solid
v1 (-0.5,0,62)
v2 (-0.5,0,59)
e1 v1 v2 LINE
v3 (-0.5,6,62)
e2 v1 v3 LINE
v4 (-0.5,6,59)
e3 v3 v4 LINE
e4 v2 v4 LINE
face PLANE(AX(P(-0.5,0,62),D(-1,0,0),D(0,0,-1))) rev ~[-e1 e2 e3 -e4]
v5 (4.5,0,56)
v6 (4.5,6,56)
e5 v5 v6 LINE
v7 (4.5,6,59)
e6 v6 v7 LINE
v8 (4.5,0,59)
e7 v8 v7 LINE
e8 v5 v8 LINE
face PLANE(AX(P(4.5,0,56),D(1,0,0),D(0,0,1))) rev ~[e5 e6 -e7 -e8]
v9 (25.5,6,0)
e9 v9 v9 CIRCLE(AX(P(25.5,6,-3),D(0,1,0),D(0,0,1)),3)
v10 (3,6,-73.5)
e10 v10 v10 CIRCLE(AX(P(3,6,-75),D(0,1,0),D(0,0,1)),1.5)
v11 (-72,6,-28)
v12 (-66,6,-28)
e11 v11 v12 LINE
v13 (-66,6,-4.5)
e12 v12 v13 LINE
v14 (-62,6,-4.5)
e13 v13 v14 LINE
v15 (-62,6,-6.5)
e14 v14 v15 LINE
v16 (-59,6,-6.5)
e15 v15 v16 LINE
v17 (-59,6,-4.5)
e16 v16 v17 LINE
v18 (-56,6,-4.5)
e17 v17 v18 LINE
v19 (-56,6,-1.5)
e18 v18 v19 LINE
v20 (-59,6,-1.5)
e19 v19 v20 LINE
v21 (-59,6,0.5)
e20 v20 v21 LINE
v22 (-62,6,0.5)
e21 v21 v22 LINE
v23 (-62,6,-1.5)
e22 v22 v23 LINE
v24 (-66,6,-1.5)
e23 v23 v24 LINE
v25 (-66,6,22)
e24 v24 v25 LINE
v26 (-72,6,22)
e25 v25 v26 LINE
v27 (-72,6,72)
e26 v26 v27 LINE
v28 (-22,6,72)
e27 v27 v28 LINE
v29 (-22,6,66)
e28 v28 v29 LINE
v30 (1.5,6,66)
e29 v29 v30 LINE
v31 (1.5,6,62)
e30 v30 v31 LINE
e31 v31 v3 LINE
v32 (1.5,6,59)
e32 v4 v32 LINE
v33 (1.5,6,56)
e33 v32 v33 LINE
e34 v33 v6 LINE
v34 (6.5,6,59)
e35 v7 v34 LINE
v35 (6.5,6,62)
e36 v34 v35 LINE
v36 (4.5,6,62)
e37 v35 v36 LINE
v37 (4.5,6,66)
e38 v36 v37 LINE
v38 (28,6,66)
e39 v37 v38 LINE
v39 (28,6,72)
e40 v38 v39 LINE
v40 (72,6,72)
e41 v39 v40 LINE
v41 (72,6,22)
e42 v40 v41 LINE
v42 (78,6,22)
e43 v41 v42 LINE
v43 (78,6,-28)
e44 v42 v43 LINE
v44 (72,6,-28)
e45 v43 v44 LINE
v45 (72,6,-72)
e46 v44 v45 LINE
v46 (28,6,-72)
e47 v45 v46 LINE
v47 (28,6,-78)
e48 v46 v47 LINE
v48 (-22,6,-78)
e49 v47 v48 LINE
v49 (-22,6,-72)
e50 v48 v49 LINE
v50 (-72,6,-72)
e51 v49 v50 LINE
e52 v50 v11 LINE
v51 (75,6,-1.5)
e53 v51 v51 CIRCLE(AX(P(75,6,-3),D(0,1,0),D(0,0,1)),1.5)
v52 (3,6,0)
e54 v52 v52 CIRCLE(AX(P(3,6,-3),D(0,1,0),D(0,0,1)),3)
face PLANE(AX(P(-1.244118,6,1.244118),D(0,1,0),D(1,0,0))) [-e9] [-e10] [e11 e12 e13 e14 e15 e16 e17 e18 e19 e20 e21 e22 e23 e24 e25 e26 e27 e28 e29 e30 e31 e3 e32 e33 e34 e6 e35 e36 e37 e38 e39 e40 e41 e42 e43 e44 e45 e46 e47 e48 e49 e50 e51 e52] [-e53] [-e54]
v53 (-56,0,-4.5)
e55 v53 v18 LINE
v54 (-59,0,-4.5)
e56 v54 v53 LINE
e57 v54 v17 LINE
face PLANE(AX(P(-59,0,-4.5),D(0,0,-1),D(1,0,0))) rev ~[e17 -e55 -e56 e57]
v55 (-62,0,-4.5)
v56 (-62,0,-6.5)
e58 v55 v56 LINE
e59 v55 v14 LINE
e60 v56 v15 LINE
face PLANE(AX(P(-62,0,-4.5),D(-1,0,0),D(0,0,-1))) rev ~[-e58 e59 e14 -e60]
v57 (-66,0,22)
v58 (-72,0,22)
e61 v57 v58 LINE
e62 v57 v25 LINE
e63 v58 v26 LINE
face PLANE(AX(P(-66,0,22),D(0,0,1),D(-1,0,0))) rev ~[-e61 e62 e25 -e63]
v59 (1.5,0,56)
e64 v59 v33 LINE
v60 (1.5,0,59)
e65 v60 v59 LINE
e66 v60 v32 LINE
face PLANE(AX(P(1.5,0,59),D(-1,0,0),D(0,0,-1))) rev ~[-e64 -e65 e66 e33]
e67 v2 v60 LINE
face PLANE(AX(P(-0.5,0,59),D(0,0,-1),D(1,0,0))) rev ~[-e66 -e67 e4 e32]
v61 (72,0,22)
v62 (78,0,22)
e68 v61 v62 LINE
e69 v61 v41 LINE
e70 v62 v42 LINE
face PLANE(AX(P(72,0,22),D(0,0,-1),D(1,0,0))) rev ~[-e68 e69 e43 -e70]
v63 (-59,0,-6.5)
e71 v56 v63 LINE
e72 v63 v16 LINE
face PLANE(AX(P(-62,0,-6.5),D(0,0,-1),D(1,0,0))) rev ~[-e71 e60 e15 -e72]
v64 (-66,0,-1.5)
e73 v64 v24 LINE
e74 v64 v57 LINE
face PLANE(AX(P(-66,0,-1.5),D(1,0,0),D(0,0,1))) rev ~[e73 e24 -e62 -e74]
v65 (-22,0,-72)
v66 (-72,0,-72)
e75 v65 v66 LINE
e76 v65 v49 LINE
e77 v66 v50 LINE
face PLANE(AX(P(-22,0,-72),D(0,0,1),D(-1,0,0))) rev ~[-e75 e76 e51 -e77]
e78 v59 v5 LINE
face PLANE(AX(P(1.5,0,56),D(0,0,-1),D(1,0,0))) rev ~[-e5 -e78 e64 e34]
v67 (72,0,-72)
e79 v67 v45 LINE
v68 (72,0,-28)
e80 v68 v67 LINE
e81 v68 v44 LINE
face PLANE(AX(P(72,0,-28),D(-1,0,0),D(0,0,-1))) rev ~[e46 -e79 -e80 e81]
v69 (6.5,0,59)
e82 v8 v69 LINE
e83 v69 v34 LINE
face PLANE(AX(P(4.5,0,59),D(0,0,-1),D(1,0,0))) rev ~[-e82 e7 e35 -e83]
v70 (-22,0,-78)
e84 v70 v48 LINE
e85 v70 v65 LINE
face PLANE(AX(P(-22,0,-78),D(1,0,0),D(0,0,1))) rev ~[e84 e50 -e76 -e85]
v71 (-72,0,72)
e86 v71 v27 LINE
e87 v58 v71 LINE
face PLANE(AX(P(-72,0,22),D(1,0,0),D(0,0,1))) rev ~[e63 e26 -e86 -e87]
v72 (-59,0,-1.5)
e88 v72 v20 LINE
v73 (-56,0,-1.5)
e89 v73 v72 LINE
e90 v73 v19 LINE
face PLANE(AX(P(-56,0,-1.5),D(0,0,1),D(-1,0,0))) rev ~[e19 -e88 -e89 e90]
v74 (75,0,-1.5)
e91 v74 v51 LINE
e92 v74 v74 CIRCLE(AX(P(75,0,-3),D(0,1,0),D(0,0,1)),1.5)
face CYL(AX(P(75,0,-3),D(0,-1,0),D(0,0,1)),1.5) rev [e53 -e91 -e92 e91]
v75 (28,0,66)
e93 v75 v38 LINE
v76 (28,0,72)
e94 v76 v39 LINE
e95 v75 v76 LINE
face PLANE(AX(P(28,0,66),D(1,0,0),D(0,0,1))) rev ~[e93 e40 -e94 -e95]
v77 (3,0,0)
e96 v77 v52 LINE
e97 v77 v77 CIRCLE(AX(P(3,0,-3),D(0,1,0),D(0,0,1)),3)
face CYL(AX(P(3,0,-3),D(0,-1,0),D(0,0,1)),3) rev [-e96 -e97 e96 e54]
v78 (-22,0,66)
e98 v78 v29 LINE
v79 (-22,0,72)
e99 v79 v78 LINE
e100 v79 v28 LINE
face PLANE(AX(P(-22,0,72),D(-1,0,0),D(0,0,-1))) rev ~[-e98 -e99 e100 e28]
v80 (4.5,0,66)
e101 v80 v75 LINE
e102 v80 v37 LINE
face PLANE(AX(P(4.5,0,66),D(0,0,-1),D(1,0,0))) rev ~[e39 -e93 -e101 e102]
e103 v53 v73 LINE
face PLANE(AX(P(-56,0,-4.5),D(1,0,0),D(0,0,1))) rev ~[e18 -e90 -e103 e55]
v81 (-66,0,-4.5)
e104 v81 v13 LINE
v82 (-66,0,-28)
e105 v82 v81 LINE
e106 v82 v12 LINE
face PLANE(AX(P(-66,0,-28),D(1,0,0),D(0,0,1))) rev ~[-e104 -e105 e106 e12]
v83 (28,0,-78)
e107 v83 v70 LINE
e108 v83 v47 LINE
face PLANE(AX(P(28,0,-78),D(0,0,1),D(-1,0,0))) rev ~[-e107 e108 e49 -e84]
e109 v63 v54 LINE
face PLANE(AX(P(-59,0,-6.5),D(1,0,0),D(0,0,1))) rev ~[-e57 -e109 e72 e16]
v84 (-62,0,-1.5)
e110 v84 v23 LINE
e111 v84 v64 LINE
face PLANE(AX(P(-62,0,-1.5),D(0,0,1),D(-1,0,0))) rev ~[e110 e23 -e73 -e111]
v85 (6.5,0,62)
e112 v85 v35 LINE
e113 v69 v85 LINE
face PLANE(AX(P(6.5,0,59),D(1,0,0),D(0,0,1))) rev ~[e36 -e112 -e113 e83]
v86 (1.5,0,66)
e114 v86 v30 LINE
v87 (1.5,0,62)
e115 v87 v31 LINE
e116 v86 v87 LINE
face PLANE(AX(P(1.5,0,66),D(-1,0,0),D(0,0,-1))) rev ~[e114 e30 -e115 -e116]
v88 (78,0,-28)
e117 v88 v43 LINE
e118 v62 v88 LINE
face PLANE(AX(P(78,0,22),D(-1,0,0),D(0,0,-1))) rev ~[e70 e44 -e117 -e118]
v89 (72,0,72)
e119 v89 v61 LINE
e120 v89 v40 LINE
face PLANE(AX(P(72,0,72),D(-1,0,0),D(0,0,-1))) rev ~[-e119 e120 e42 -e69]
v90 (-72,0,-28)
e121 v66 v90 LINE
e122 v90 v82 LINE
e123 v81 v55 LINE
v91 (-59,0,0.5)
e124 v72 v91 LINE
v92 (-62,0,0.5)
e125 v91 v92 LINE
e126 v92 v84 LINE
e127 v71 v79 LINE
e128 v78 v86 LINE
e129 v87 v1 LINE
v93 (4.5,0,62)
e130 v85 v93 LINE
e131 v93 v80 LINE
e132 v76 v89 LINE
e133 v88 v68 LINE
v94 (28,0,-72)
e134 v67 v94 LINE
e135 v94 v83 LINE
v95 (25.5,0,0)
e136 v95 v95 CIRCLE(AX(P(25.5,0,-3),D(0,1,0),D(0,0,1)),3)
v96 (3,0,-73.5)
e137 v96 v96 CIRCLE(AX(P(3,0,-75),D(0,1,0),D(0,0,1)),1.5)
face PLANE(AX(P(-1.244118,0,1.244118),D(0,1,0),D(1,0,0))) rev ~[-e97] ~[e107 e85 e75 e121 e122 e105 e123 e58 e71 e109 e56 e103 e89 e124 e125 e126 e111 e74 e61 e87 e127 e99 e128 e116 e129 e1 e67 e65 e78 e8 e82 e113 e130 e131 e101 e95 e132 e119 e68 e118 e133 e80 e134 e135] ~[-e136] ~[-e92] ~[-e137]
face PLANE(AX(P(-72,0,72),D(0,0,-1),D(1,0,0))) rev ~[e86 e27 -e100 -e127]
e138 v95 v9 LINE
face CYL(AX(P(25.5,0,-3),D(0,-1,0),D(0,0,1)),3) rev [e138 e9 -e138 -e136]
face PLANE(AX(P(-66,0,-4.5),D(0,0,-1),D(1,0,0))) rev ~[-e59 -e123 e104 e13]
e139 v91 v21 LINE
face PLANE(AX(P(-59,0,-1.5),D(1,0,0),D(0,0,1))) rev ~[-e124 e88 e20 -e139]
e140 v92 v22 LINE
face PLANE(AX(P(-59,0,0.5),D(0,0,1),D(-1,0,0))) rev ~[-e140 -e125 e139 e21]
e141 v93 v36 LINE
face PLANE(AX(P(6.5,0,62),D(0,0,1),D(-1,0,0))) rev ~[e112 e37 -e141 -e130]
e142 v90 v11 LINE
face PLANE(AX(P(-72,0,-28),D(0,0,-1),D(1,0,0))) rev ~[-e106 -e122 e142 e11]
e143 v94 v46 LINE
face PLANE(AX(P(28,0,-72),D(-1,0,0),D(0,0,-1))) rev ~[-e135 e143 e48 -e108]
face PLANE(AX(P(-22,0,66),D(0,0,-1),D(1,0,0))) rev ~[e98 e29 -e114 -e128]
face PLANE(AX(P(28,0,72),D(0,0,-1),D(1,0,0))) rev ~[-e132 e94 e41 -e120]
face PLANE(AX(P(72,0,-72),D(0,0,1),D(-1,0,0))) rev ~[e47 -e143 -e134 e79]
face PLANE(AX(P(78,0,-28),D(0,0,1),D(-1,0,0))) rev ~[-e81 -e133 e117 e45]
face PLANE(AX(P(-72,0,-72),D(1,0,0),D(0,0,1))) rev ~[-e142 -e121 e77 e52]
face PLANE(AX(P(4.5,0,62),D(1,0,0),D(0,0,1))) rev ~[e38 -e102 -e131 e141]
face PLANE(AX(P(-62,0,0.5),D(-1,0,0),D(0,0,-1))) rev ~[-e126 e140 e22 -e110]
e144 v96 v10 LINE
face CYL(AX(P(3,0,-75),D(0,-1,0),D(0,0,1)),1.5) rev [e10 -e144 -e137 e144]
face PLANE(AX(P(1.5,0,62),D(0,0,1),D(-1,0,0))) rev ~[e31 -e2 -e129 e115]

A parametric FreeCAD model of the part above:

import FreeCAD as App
import Part
import Sketcher
from FreeCAD import Vector
Q = App.Units.Quantity

doc = App.newDocument("Part")
body = doc.addObject("PartDesign::Body", "Body")

sketch1 = doc.addObject("Sketcher::SketchObject", "Sketch")
body.addObject(sketch1)
sketch1.AttachmentSupport = (doc.XZ_Plane, [""])
sketch1.MapMode = "FlatFace"
sketch1.addGeometry([
    Part.LineSegment(Vector(-72, -72, 0), Vector(-72, -28, 0)),
    Part.LineSegment(Vector(-72, -28, 0), Vector(-66, -28, 0)),
    Part.LineSegment(Vector(-66, -28, 0), Vector(-66, -4.5, 0)),
    Part.LineSegment(Vector(-66, -4.5, 0), Vector(-62, -4.5, 0)),
    Part.LineSegment(Vector(-62, -4.5, 0), Vector(-62, -6.5, 0)),
    Part.LineSegment(Vector(-62, -6.5, 0), Vector(-59, -6.5, 0)),
    Part.LineSegment(Vector(-59, -6.5, 0), Vector(-59, -4.5, 0)),
    Part.LineSegment(Vector(-59, -4.5, 0), Vector(-56, -4.5, 0)),
    Part.LineSegment(Vector(-56, -4.5, 0), Vector(-56, -1.5, 0)),
    Part.LineSegment(Vector(-56, -1.5, 0), Vector(-59, -1.5, 0)),
    Part.LineSegment(Vector(-59, -1.5, 0), Vector(-59, 0.5, 0)),
    Part.LineSegment(Vector(-59, 0.5, 0), Vector(-62, 0.5, 0)),
    Part.LineSegment(Vector(-62, 0.5, 0), Vector(-62, -1.5, 0)),
    Part.LineSegment(Vector(-62, -1.5, 0), Vector(-66, -1.5, 0)),
    Part.LineSegment(Vector(-66, -1.5, 0), Vector(-66, 22, 0)),
    Part.LineSegment(Vector(-66, 22, 0), Vector(-72, 22, 0)),
    Part.LineSegment(Vector(-72, 22, 0), Vector(-72, 72, 0)),
    Part.LineSegment(Vector(-72, 72, 0), Vector(-22, 72, 0)),
    Part.LineSegment(Vector(-22, 72, 0), Vector(-22, 66, 0)),
    Part.LineSegment(Vector(-22, 66, 0), Vector(1.5, 66, 0)),
    Part.LineSegment(Vector(1.5, 66, 0), Vector(1.5, 62, 0)),
    Part.LineSegment(Vector(1.5, 62, 0), Vector(-0.5, 62, 0)),
    Part.LineSegment(Vector(-0.5, 62, 0), Vector(-0.5, 59, 0)),
    Part.LineSegment(Vector(-0.5, 59, 0), Vector(1.5, 59, 0)),
    Part.LineSegment(Vector(1.5, 59, 0), Vector(1.5, 56, 0)),
    Part.LineSegment(Vector(1.5, 56, 0), Vector(4.5, 56, 0)),
    Part.LineSegment(Vector(4.5, 56, 0), Vector(4.5, 59, 0)),
    Part.LineSegment(Vector(4.5, 59, 0), Vector(6.5, 59, 0)),
    Part.LineSegment(Vector(6.5, 59, 0), Vector(6.5, 62, 0)),
    Part.LineSegment(Vector(6.5, 62, 0), Vector(4.5, 62, 0)),
    Part.LineSegment(Vector(4.5, 62, 0), Vector(4.5, 66, 0)),
    Part.LineSegment(Vector(4.5, 66, 0), Vector(28, 66, 0)),
    Part.LineSegment(Vector(28, 66, 0), Vector(28, 72, 0)),
    Part.LineSegment(Vector(28, 72, 0), Vector(72, 72, 0)),
    Part.LineSegment(Vector(72, 72, 0), Vector(72, 22, 0)),
    Part.LineSegment(Vector(72, 22, 0), Vector(78, 22, 0)),
    Part.LineSegment(Vector(78, 22, 0), Vector(78, -28, 0)),
    Part.LineSegment(Vector(78, -28, 0), Vector(72, -28, 0)),
    Part.LineSegment(Vector(72, -28, 0), Vector(72, -72, 0)),
    Part.LineSegment(Vector(72, -72, 0), Vector(28, -72, 0)),
    Part.LineSegment(Vector(28, -72, 0), Vector(28, -78, 0)),
    Part.LineSegment(Vector(28, -78, 0), Vector(-22, -78, 0)),
    Part.LineSegment(Vector(-22, -78, 0), Vector(-22, -72, 0)),
    Part.LineSegment(Vector(-22, -72, 0), Vector(-72, -72, 0)),
    Part.Circle(Vector(3, -3, 0), Vector(0, 0, 1), 3),
    Part.Circle(Vector(25.5, -3, 0), Vector(0, 0, 1), 3),
    Part.Circle(Vector(75, -3, 0), Vector(0, 0, 1), 1.5),
    Part.Circle(Vector(3, -75, 0), Vector(0, 0, 1), 1.5),
], False)
sketch1.addConstraint([
    Sketcher.Constraint("Coincident", 0, 2, 1, 1),
    Sketcher.Constraint("Coincident", 1, 2, 2, 1),
    Sketcher.Constraint("Coincident", 2, 2, 3, 1),
    Sketcher.Constraint("Coincident", 3, 2, 4, 1),
    Sketcher.Constraint("Coincident", 4, 2, 5, 1),
    Sketcher.Constraint("Coincident", 5, 2, 6, 1),
    Sketcher.Constraint("Coincident", 6, 2, 7, 1),
    Sketcher.Constraint("Coincident", 7, 2, 8, 1),
    Sketcher.Constraint("Coincident", 8, 2, 9, 1),
    Sketcher.Constraint("Coincident", 9, 2, 10, 1),
    Sketcher.Constraint("Coincident", 10, 2, 11, 1),
    Sketcher.Constraint("Coincident", 11, 2, 12, 1),
    Sketcher.Constraint("Coincident", 12, 2, 13, 1),
    Sketcher.Constraint("Coincident", 13, 2, 14, 1),
    Sketcher.Constraint("Coincident", 14, 2, 15, 1),
    Sketcher.Constraint("Coincident", 15, 2, 16, 1),
    Sketcher.Constraint("Coincident", 16, 2, 17, 1),
    Sketcher.Constraint("Coincident", 17, 2, 18, 1),
    Sketcher.Constraint("Coincident", 18, 2, 19, 1),
    Sketcher.Constraint("Coincident", 19, 2, 20, 1),
    Sketcher.Constraint("Coincident", 20, 2, 21, 1),
    Sketcher.Constraint("Coincident", 21, 2, 22, 1),
    Sketcher.Constraint("Coincident", 22, 2, 23, 1),
    Sketcher.Constraint("Coincident", 23, 2, 24, 1),
    Sketcher.Constraint("Coincident", 24, 2, 25, 1),
    Sketcher.Constraint("Coincident", 25, 2, 26, 1),
    Sketcher.Constraint("Coincident", 26, 2, 27, 1),
    Sketcher.Constraint("Coincident", 27, 2, 28, 1),
    Sketcher.Constraint("Coincident", 28, 2, 29, 1),
    Sketcher.Constraint("Coincident", 29, 2, 30, 1),
    Sketcher.Constraint("Coincident", 30, 2, 31, 1),
    Sketcher.Constraint("Coincident", 31, 2, 32, 1),
    Sketcher.Constraint("Coincident", 32, 2, 33, 1),
    Sketcher.Constraint("Coincident", 33, 2, 34, 1),
    Sketcher.Constraint("Coincident", 34, 2, 35, 1),
    Sketcher.Constraint("Coincident", 35, 2, 36, 1),
    Sketcher.Constraint("Coincident", 36, 2, 37, 1),
    Sketcher.Constraint("Coincident", 37, 2, 38, 1),
    Sketcher.Constraint("Coincident", 38, 2, 39, 1),
    Sketcher.Constraint("Coincident", 39, 2, 40, 1),
    Sketcher.Constraint("Coincident", 40, 2, 41, 1),
    Sketcher.Constraint("Coincident", 41, 2, 42, 1),
    Sketcher.Constraint("Coincident", 42, 2, 43, 1),
    Sketcher.Constraint("Coincident", 43, 2, 0, 1),
    Sketcher.Constraint("Vertical", 0),
    Sketcher.Constraint("Horizontal", 1),
    Sketcher.Constraint("Vertical", 2),
    Sketcher.Constraint("Horizontal", 3),
    Sketcher.Constraint("Vertical", 4),
    Sketcher.Constraint("Horizontal", 5),
    Sketcher.Constraint("Vertical", 6),
    Sketcher.Constraint("Horizontal", 7),
    Sketcher.Constraint("Vertical", 8),
    Sketcher.Constraint("Horizontal", 9),
    Sketcher.Constraint("Vertical", 10),
    Sketcher.Constraint("Horizontal", 11),
    Sketcher.Constraint("Vertical", 12),
    Sketcher.Constraint("Horizontal", 13),
    Sketcher.Constraint("Vertical", 14),
    Sketcher.Constraint("Horizontal", 15),
    Sketcher.Constraint("Vertical", 16),
    Sketcher.Constraint("Horizontal", 17),
    Sketcher.Constraint("Vertical", 18),
    Sketcher.Constraint("Horizontal", 19),
    Sketcher.Constraint("Vertical", 20),
    Sketcher.Constraint("Horizontal", 21),
    Sketcher.Constraint("Vertical", 22),
    Sketcher.Constraint("Horizontal", 23),
    Sketcher.Constraint("Vertical", 24),
    Sketcher.Constraint("Horizontal", 25),
    Sketcher.Constraint("Vertical", 26),
    Sketcher.Constraint("Horizontal", 27),
    Sketcher.Constraint("Vertical", 28),
    Sketcher.Constraint("Horizontal", 29),
    Sketcher.Constraint("Vertical", 30),
    Sketcher.Constraint("Horizontal", 31),
    Sketcher.Constraint("Vertical", 32),
    Sketcher.Constraint("Horizontal", 33),
    Sketcher.Constraint("Vertical", 34),
    Sketcher.Constraint("Horizontal", 35),
    Sketcher.Constraint("Vertical", 36),
    Sketcher.Constraint("Horizontal", 37),
    Sketcher.Constraint("Vertical", 38),
    Sketcher.Constraint("Horizontal", 39),
    Sketcher.Constraint("Vertical", 40),
    Sketcher.Constraint("Horizontal", 41),
    Sketcher.Constraint("Vertical", 42),
    Sketcher.Constraint("Horizontal", 43),
    Sketcher.Constraint("Equal", 44, 45),
    Sketcher.Constraint("Equal", 46, 47),
    Sketcher.Constraint("Symmetric", 16, 2, 38, 2, -1, 1),
    Sketcher.Constraint("Symmetric", 33, 2, 43, 2, -1, 1),
    Sketcher.Constraint("Symmetric", 16, 2, 33, 2, -2),
    Sketcher.Constraint("Horizontal", 44, 3, 45, 3),
    Sketcher.Constraint("Horizontal", 45, 3, 46, 3),
    Sketcher.Constraint("Horizontal", 3, 2, 6, 2),
    Sketcher.Constraint("Horizontal", 9, 2, 12, 2),
    Sketcher.Constraint("Horizontal", 23, 2, 26, 2),
    Sketcher.Constraint("Horizontal", 21, 2, 28, 2),
    Sketcher.Constraint("Horizontal", 19, 2, 30, 2),
    Sketcher.Constraint("Horizontal", 15, 2, 34, 2),
    Sketcher.Constraint("Horizontal", 1, 2, 36, 2),
    Sketcher.Constraint("Vertical", 44, 3, 47, 3),
    Sketcher.Constraint("Vertical", 6, 2, 9, 2),
    Sketcher.Constraint("Vertical", 4, 2, 11, 2),
    Sketcher.Constraint("Vertical", 2, 2, 13, 2),
    Sketcher.Constraint("Vertical", 20, 2, 23, 2),
    Sketcher.Constraint("Vertical", 26, 2, 29, 2),
    Sketcher.Constraint("Vertical", 32, 2, 39, 2),
    Sketcher.Constraint("Vertical", 18, 2, 41, 2),
    Sketcher.Constraint("Equal", 5, 7),
    Sketcher.Constraint("Equal", 11, 25),
    Sketcher.Constraint("Equal", 23, 27),
    Sketcher.Constraint("Equal", 19, 31),
    Sketcher.Constraint("Equal", 15, 35),
    Sketcher.Constraint("Equal", 17, 41),
    Sketcher.Constraint("Equal", 39, 0),
    Sketcher.Constraint("Equal", 31, 2),
    Sketcher.Constraint("Equal", 29, 4),
    Sketcher.Constraint("Equal", 25, 8),
    Sketcher.Constraint("Equal", 6, 10),
    Sketcher.Constraint("Equal", 2, 14),
    Sketcher.Constraint("Equal", 43, 16),
    Sketcher.Constraint("Equal", 37, 18),
    Sketcher.Constraint("Equal", 13, 20),
    Sketcher.Constraint("Equal", 8, 22),
    Sketcher.Constraint("Equal", 22, 24),
    Sketcher.Constraint("Equal", 32, 40),
    Sketcher.Constraint("Diameter", 44, Q("6 mm")),
    Sketcher.Constraint("Diameter", 46, Q("3 mm")),
    Sketcher.Constraint("DistanceX", 1, 1, 1, 2, Q("6 mm")),
    Sketcher.Constraint("DistanceX", 3, 1, 3, 2, Q("4 mm")),
    Sketcher.Constraint("DistanceX", 5, 1, 5, 2, Q("3 mm")),
    Sketcher.Constraint("DistanceX", 17, 1, 17, 2, Q("50 mm")),
    Sketcher.Constraint("DistanceX", 21, 2, 21, 1, Q("2 mm")),
    Sketcher.Constraint("DistanceX", 33, 1, 33, 2, Q("44 mm")),
    Sketcher.Constraint("DistanceX", -1, 1, 44, 3, Q("3 mm")),
    Sketcher.Constraint("DistanceY", 44, 3, -1, 1, Q("3 mm")),
    Sketcher.Constraint("DistanceX", -1, 1, 46, 3, Q("75 mm")),
    Sketcher.Constraint("DistanceY", 47, 3, -1, 1, Q("75 mm")),
    Sketcher.Constraint("DistanceX", 19, 2, 45, 3, Q("24 mm")),
])
pad1 = doc.addObject("PartDesign::Pad", "Pad")
body.addObject(pad1)
pad1.Profile = sketch1
pad1.Length = 6
pad1.Reversed = True

doc.recompute()
